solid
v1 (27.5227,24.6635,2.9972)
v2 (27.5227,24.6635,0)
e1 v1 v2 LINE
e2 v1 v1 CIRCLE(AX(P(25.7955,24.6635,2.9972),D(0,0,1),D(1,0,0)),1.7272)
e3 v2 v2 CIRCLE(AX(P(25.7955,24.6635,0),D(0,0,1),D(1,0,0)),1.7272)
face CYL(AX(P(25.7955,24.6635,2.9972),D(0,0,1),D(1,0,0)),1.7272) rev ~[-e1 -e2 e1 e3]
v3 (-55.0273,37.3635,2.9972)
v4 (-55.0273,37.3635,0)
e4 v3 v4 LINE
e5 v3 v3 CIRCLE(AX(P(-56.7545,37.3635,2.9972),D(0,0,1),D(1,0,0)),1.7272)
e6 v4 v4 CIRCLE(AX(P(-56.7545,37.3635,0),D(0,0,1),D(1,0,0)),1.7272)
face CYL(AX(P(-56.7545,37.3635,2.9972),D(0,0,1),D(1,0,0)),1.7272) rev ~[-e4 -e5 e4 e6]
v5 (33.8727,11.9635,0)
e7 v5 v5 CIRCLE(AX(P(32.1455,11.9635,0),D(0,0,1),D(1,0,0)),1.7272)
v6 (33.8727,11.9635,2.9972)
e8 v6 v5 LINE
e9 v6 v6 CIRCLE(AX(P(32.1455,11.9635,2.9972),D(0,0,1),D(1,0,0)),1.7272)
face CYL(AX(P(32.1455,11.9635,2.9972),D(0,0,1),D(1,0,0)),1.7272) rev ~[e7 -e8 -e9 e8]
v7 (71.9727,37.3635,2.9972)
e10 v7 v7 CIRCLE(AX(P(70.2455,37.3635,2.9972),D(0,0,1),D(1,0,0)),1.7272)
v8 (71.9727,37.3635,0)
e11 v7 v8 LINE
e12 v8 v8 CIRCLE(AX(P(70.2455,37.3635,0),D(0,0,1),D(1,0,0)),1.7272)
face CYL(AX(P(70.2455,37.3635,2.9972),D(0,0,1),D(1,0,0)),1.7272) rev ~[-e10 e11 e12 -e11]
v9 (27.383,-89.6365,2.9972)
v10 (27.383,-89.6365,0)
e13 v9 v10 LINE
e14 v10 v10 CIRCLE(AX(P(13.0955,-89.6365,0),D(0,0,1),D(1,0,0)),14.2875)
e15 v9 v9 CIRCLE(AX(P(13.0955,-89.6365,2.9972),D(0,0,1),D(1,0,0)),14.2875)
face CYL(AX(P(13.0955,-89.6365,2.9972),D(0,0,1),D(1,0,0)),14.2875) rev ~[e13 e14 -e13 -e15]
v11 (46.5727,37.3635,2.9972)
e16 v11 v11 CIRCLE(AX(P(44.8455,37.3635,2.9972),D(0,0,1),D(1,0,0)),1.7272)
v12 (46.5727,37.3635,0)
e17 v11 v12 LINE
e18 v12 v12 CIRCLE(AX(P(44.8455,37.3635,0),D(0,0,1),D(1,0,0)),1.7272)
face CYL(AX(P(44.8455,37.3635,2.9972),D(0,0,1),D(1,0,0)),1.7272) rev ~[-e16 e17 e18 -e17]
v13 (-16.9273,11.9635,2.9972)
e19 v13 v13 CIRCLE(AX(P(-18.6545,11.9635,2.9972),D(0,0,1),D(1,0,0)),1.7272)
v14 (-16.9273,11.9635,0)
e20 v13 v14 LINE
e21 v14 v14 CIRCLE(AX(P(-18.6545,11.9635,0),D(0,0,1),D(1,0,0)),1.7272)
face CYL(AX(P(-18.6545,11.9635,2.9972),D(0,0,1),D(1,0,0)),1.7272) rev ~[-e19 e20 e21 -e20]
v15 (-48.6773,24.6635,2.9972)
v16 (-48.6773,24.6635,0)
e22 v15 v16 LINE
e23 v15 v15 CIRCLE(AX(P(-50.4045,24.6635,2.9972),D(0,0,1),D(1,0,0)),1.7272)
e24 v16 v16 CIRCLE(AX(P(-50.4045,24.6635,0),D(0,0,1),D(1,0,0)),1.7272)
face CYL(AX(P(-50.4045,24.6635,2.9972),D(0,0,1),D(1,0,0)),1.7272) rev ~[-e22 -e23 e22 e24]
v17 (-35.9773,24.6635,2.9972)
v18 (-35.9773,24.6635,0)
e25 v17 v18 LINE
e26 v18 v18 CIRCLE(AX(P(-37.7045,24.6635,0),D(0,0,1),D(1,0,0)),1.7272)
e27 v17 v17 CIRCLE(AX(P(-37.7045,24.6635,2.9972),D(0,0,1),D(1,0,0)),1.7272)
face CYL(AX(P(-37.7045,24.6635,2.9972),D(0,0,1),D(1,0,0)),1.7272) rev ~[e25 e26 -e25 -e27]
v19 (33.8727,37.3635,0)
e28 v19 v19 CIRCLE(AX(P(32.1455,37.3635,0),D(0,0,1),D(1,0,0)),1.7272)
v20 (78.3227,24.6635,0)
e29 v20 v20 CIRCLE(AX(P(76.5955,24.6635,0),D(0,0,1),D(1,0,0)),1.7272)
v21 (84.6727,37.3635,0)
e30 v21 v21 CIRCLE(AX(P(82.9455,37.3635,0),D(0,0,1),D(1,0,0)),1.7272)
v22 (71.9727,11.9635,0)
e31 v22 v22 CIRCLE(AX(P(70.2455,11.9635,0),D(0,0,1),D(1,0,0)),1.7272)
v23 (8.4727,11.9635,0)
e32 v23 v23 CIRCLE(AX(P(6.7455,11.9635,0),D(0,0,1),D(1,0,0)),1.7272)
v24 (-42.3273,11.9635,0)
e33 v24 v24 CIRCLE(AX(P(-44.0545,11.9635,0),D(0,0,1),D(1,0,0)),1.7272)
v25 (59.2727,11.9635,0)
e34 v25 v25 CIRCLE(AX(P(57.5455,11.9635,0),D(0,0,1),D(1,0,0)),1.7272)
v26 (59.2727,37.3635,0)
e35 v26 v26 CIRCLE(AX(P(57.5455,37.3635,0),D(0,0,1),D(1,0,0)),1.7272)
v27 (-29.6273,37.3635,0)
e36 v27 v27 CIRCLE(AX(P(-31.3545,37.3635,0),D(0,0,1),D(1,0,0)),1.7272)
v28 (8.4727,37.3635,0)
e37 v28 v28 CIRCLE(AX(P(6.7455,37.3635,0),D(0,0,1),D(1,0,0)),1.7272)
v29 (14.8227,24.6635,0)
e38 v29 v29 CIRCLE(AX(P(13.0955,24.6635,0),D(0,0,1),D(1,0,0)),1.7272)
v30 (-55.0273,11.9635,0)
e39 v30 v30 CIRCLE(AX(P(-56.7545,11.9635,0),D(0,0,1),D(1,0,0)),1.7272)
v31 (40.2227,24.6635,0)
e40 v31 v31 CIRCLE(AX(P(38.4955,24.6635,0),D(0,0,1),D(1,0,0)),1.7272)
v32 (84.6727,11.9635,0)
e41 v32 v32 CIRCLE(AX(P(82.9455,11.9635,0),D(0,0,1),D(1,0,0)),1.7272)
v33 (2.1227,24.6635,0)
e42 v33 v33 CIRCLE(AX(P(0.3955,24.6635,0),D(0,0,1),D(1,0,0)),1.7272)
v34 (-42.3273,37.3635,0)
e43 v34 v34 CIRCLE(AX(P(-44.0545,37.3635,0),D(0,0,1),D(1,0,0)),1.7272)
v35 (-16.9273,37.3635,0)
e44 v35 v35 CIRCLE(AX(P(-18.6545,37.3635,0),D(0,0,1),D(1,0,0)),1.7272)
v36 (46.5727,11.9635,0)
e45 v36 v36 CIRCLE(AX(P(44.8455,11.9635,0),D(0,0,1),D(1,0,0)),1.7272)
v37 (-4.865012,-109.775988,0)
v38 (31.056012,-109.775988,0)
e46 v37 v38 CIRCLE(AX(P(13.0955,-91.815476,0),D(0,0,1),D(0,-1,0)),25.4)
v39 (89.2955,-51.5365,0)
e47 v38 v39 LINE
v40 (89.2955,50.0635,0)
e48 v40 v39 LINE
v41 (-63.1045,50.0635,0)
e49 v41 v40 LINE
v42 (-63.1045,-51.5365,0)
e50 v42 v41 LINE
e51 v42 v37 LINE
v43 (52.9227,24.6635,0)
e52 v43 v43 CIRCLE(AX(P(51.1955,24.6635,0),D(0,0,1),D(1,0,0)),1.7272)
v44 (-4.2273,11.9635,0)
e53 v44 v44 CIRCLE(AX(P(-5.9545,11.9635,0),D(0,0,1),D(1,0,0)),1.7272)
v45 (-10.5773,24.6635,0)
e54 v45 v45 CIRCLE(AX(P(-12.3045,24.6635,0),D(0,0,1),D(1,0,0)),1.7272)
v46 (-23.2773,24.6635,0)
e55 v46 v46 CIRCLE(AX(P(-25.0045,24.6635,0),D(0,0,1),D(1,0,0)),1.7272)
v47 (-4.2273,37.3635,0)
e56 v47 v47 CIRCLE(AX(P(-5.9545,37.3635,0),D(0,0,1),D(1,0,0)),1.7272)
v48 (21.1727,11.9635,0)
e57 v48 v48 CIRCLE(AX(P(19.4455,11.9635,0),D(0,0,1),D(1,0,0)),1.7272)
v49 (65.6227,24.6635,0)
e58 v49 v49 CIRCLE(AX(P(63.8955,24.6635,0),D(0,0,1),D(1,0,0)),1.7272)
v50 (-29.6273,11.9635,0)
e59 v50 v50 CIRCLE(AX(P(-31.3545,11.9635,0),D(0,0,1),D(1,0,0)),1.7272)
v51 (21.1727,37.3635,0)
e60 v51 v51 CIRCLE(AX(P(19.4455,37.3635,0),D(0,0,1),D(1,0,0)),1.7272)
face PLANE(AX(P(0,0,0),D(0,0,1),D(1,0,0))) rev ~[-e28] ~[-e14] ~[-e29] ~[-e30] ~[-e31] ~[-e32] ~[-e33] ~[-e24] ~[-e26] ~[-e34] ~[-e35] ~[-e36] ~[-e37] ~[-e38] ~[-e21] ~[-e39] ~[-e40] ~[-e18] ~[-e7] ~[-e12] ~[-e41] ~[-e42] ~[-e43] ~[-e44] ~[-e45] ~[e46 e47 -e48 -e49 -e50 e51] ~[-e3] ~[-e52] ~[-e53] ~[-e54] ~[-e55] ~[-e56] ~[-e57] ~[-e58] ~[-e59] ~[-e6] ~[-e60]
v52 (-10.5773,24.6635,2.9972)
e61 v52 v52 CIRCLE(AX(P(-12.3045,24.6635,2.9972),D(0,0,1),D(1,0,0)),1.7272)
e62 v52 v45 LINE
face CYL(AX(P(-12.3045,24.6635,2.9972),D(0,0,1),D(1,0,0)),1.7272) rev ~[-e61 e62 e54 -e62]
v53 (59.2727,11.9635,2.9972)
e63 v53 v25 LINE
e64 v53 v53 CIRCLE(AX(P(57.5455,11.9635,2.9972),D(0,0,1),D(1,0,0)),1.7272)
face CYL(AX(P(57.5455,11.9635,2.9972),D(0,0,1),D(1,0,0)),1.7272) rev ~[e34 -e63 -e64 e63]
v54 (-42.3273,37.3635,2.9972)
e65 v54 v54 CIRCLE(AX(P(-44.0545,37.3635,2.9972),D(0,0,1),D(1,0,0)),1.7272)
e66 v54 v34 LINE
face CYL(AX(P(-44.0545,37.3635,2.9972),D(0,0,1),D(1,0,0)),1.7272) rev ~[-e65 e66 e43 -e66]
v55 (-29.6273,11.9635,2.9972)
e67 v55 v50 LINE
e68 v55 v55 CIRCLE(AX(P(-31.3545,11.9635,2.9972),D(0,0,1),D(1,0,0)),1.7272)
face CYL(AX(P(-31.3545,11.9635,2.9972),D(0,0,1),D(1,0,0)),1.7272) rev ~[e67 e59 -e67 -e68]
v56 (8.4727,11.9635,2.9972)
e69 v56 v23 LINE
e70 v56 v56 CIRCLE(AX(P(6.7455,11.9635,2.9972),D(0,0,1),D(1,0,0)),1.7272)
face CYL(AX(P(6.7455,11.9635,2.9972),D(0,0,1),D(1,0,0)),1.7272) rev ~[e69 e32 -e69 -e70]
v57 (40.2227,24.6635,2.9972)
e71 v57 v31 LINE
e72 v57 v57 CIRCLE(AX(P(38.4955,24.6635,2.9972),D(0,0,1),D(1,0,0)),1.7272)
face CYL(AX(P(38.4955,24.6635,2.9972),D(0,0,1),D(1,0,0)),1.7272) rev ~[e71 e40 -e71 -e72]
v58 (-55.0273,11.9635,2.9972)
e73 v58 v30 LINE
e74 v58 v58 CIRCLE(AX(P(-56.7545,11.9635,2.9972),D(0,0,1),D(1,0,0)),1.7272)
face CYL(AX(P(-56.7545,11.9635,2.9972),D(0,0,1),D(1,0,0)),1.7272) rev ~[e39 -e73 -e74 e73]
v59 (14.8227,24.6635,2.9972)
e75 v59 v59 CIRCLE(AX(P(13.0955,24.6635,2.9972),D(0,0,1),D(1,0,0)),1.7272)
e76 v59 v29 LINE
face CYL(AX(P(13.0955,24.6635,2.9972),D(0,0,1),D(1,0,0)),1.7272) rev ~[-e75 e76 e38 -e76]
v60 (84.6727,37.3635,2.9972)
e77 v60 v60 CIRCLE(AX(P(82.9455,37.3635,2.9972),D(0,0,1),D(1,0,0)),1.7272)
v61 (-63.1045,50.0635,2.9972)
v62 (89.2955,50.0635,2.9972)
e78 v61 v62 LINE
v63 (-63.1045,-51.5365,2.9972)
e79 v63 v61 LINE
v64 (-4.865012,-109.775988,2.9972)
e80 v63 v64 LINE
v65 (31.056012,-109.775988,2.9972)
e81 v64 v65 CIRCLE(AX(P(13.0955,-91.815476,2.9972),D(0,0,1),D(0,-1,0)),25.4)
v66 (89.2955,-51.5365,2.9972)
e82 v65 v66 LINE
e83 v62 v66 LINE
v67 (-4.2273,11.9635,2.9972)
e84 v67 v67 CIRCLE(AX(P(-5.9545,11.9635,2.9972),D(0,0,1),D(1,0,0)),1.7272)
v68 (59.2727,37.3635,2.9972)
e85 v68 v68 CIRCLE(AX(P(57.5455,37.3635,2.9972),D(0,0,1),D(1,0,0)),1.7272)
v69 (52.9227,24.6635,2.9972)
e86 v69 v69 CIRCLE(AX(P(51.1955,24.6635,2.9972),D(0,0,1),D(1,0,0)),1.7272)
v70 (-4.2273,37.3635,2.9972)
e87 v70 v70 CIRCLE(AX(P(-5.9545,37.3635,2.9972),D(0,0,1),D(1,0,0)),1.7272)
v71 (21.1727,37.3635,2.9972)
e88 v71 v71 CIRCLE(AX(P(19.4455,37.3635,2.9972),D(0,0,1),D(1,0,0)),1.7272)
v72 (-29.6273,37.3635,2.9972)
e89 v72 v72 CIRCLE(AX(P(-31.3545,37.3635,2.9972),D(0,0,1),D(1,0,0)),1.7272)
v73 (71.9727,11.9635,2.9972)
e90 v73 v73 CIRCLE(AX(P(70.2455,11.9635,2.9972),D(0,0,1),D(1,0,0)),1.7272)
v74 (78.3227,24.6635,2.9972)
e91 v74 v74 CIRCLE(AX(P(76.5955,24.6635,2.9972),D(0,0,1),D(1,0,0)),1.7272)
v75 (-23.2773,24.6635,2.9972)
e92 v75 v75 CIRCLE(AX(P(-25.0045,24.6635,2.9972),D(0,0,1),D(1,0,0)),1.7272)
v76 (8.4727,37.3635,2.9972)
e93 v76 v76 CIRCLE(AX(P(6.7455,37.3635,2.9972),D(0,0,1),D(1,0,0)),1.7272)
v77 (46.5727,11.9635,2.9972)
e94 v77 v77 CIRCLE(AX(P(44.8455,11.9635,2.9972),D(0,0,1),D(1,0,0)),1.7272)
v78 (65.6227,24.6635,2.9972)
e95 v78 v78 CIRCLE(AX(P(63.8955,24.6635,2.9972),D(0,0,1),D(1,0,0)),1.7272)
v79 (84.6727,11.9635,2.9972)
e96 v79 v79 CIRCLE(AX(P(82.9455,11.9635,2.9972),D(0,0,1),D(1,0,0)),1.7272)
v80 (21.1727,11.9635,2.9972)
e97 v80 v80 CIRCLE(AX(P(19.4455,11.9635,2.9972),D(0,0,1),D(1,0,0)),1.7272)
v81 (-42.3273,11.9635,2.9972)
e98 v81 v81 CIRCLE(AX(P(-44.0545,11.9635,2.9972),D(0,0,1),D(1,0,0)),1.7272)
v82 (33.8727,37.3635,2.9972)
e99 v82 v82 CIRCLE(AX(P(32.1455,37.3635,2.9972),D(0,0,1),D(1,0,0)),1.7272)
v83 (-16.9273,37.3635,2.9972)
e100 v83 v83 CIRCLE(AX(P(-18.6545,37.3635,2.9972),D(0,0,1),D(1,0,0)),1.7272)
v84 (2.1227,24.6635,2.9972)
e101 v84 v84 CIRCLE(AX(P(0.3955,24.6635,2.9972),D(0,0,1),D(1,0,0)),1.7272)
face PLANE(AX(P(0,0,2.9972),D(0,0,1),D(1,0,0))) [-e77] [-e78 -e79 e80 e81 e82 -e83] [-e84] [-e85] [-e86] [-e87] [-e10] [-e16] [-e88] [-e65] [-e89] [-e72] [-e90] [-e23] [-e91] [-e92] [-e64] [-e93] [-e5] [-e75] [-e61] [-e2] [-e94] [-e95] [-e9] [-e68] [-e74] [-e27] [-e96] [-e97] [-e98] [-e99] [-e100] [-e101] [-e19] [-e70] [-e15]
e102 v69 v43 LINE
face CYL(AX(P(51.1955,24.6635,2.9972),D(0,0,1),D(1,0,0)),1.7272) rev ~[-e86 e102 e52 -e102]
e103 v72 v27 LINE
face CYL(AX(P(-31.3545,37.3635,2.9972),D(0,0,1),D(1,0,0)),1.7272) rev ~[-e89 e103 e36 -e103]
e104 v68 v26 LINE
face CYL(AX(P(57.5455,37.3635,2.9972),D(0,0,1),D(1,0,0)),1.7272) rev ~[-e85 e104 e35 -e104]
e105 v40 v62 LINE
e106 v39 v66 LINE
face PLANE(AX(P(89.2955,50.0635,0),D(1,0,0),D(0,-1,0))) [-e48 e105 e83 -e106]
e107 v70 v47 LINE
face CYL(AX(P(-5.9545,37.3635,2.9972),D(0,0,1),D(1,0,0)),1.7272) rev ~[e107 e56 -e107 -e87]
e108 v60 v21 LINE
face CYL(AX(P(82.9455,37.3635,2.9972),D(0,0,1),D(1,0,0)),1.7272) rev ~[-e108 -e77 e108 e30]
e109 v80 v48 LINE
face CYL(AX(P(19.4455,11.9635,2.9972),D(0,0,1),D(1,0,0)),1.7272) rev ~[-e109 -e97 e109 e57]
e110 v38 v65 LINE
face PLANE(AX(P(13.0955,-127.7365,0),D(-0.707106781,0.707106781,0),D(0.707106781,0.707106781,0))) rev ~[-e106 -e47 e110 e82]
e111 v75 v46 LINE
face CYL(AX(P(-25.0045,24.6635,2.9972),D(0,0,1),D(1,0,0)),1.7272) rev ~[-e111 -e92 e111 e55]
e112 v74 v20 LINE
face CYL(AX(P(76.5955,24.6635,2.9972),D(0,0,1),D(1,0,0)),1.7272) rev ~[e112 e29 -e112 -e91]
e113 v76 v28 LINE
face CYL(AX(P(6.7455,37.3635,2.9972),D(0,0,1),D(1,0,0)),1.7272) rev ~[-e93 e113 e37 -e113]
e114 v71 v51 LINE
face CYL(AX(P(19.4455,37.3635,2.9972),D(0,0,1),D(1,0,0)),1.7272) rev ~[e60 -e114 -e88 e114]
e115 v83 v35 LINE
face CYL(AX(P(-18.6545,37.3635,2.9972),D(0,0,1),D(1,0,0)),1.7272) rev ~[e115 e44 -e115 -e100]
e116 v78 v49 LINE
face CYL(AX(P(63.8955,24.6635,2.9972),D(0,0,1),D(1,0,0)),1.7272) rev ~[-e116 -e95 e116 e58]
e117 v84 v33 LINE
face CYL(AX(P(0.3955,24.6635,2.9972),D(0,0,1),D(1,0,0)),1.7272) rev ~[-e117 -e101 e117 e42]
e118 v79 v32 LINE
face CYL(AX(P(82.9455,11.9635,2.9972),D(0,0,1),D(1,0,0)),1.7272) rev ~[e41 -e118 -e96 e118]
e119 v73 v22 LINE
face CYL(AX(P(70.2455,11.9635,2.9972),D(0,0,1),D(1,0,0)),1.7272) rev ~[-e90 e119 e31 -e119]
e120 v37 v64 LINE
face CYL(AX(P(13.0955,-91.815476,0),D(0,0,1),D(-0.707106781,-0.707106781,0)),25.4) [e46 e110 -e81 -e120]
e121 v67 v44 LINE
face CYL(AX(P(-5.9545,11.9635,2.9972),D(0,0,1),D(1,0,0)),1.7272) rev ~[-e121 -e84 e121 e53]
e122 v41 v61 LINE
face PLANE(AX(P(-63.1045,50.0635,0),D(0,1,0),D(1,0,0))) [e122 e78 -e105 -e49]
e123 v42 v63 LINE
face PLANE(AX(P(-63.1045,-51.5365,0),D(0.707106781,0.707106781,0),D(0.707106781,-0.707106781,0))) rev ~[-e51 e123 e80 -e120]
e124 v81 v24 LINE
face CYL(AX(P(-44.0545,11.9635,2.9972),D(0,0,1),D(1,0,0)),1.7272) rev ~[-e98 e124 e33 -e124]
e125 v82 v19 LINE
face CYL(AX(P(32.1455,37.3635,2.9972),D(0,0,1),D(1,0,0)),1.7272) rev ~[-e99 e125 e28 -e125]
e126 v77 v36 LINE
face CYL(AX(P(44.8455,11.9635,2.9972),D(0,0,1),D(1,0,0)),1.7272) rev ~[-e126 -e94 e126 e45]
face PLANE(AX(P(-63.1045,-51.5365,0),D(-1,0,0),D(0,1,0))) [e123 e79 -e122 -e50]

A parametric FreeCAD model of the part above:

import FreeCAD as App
import Part
import Sketcher

V = App.Vector
Q = App.Units.Quantity


def edges_at(feature, points):
    """Names of the edges that pass closest to the given points."""
    edges = feature.Shape.Edges
    near = lambda p: min(range(len(edges)), key=lambda i: edges[i].distToShape(Part.Vertex(*p))[0])
    return sorted({f"Edge{near(p) + 1}" for p in points})

doc = App.newDocument("Part")
body = doc.addObject("PartDesign::Body", "Body")

sketch1 = body.newObject("Sketcher::SketchObject", "Sketch")
sketch1.AttachmentSupport = (doc.getObject("XY_Plane"), [""])
sketch1.MapMode = "FlatFace"
sketch1.addGeometry(Part.LineSegment(V(89, 50, 0), V(-63, 50, 0)), False)
sketch1.addGeometry(Part.LineSegment(V(-63, 50, 0), V(-63, -52, 0)), False)
sketch1.addGeometry(Part.LineSegment(V(-63, -52, 0), V(13, -128, 0)), False)
sketch1.addGeometry(Part.LineSegment(V(13, -128, 0), V(89, -52, 0)), False)
sketch1.addGeometry(Part.LineSegment(V(89, -52, 0), V(89, 50, 0)), False)
sketch1.addConstraint(Sketcher.Constraint("Coincident", 0, 2, 1, 1))
sketch1.addConstraint(Sketcher.Constraint("Coincident", 1, 2, 2, 1))
sketch1.addConstraint(Sketcher.Constraint("Coincident", 2, 2, 3, 1))
sketch1.addConstraint(Sketcher.Constraint("Coincident", 3, 2, 4, 1))
sketch1.addConstraint(Sketcher.Constraint("Coincident", 4, 2, 0, 1))
sketch1.addConstraint(Sketcher.Constraint("Horizontal", 0))
sketch1.addConstraint(Sketcher.Constraint("Vertical", 1))
sketch1.addConstraint(Sketcher.Constraint("Vertical", 4))
sketch1.addConstraint(Sketcher.Constraint("Perpendicular", 2, 3))
sketch1.addConstraint(Sketcher.Constraint("Horizontal", 1, 2, 3, 2))
sketch1.addConstraint(Sketcher.Constraint("Equal", 2, 3))
sketch1.addConstraint(Sketcher.Constraint("DistanceX", 0, 2, 0, 1, Q("6 in")))
sketch1.addConstraint(Sketcher.Constraint("DistanceY", 1, 2, 1, 1, Q("4 in")))
sketch1.addConstraint(Sketcher.Constraint("DistanceY", -1, 1, 0, 2, Q("1.971 in")))
sketch1.addConstraint(Sketcher.Constraint("DistanceX", 0, 2, -1, 1, 63.1045))
pad1 = body.newObject("PartDesign::Pad", "Pad")
pad1.Profile = sketch1
pad1.Length = Q("0.118 in")

sketch2 = body.newObject("Sketcher::SketchObject", "Sketch001")
sketch2.AttachmentSupport = (doc.getObject("XY_Plane"), [""])
sketch2.MapMode = "FlatFace"
sketch2.AttachmentOffset = App.Placement(V(0, 0, 0.118 * 25.4), App.Rotation())
sketch2.addGeometry(Part.Circle(V(-56.8, 37.4, 0), V(0, 0, 1), 1.7), False)
sketch2.addGeometry(Part.Circle(V(-56.8, 12, 0), V(0, 0, 1), 1.7), False)
sketch2.addConstraint(Sketcher.Constraint("Equal", 0, 1))
sketch2.addConstraint(Sketcher.Constraint("Vertical", 0, 3, 1, 3))
sketch2.addConstraint(Sketcher.Constraint("Diameter", 0, Q("0.136 in")))
sketch2.addConstraint(Sketcher.Constraint("DistanceY", 1, 3, 0, 3, Q("1 in")))
sketch2.addConstraint(Sketcher.Constraint("DistanceY", -1, 1, 0, 3, Q("1.471 in")))
sketch2.addConstraint(Sketcher.Constraint("DistanceX", 0, 3, -1, 1, 56.7545))
pocket1 = body.newObject("PartDesign::Pocket", "Pocket")
pocket1.Profile = sketch2
pocket1.Type = "ThroughAll"

sketch3 = body.newObject("Sketcher::SketchObject", "Sketch002")
sketch3.AttachmentSupport = (doc.getObject("XY_Plane"), [""])
sketch3.MapMode = "FlatFace"
sketch3.AttachmentOffset = App.Placement(V(0, 0, 0.118 * 25.4), App.Rotation())
sketch3.addGeometry(Part.Circle(V(-50.4, 24.7, 0), V(0, 0, 1), 1.7), False)
sketch3.addConstraint(Sketcher.Constraint("Diameter", 0, Q("0.136 in")))
sketch3.addConstraint(Sketcher.Constraint("DistanceY", -1, 1, 0, 3, Q("0.971 in")))
sketch3.addConstraint(Sketcher.Constraint("DistanceX", 0, 3, -1, 1, 50.4045))
pocket2 = body.newObject("PartDesign::Pocket", "Pocket001")
pocket2.Profile = sketch3
pocket2.Type = "ThroughAll"
doc.recompute()

linearpattern = body.newObject("PartDesign::LinearPattern", "LinearPattern")
linearpattern.Originals = [pocket1]
linearpattern.Direction = (doc.getObject("X_Axis"), [""])
linearpattern.Mode = "offset"
linearpattern.Offset = Q("0.5 in")
linearpattern.Occurrences = 12
body.Tip = linearpattern
doc.recompute()

linearpattern2 = body.newObject("PartDesign::LinearPattern", "LinearPattern001")
linearpattern2.Originals = [pocket2]
linearpattern2.Direction = (doc.getObject("X_Axis"), [""])
linearpattern2.Mode = "offset"
linearpattern2.Offset = Q("0.5 in")
linearpattern2.Occurrences = 11
body.Tip = linearpattern2

sketch4 = body.newObject("Sketcher::SketchObject", "Sketch003")
sketch4.AttachmentSupport = (doc.getObject("XY_Plane"), [""])
sketch4.MapMode = "FlatFace"
sketch4.AttachmentOffset = App.Placement(V(0, 0, 0.118 * 25.4), App.Rotation())
sketch4.addGeometry(Part.Circle(V(13, -90, 0), V(0, 0, 1), 14), False)
sketch4.addConstraint(Sketcher.Constraint("Diameter", 0, Q("1.125 in")))
sketch4.addConstraint(Sketcher.Constraint("DistanceY", 0, 3, -1, 1, Q("3.529 in")))
sketch4.addConstraint(Sketcher.Constraint("DistanceX", -1, 1, 0, 3, 13.0955))
pocket3 = body.newObject("PartDesign::Pocket", "Pocket002")
pocket3.Profile = sketch4
pocket3.Type = "ThroughAll"
doc.recompute()

fillet = body.newObject("PartDesign::Fillet", "Fillet")
fillet.Base = (pocket3, edges_at(pocket3, [(13.095, -127.737, 1.499)]))
fillet.Radius = Q("1 in")

doc.recompute()
